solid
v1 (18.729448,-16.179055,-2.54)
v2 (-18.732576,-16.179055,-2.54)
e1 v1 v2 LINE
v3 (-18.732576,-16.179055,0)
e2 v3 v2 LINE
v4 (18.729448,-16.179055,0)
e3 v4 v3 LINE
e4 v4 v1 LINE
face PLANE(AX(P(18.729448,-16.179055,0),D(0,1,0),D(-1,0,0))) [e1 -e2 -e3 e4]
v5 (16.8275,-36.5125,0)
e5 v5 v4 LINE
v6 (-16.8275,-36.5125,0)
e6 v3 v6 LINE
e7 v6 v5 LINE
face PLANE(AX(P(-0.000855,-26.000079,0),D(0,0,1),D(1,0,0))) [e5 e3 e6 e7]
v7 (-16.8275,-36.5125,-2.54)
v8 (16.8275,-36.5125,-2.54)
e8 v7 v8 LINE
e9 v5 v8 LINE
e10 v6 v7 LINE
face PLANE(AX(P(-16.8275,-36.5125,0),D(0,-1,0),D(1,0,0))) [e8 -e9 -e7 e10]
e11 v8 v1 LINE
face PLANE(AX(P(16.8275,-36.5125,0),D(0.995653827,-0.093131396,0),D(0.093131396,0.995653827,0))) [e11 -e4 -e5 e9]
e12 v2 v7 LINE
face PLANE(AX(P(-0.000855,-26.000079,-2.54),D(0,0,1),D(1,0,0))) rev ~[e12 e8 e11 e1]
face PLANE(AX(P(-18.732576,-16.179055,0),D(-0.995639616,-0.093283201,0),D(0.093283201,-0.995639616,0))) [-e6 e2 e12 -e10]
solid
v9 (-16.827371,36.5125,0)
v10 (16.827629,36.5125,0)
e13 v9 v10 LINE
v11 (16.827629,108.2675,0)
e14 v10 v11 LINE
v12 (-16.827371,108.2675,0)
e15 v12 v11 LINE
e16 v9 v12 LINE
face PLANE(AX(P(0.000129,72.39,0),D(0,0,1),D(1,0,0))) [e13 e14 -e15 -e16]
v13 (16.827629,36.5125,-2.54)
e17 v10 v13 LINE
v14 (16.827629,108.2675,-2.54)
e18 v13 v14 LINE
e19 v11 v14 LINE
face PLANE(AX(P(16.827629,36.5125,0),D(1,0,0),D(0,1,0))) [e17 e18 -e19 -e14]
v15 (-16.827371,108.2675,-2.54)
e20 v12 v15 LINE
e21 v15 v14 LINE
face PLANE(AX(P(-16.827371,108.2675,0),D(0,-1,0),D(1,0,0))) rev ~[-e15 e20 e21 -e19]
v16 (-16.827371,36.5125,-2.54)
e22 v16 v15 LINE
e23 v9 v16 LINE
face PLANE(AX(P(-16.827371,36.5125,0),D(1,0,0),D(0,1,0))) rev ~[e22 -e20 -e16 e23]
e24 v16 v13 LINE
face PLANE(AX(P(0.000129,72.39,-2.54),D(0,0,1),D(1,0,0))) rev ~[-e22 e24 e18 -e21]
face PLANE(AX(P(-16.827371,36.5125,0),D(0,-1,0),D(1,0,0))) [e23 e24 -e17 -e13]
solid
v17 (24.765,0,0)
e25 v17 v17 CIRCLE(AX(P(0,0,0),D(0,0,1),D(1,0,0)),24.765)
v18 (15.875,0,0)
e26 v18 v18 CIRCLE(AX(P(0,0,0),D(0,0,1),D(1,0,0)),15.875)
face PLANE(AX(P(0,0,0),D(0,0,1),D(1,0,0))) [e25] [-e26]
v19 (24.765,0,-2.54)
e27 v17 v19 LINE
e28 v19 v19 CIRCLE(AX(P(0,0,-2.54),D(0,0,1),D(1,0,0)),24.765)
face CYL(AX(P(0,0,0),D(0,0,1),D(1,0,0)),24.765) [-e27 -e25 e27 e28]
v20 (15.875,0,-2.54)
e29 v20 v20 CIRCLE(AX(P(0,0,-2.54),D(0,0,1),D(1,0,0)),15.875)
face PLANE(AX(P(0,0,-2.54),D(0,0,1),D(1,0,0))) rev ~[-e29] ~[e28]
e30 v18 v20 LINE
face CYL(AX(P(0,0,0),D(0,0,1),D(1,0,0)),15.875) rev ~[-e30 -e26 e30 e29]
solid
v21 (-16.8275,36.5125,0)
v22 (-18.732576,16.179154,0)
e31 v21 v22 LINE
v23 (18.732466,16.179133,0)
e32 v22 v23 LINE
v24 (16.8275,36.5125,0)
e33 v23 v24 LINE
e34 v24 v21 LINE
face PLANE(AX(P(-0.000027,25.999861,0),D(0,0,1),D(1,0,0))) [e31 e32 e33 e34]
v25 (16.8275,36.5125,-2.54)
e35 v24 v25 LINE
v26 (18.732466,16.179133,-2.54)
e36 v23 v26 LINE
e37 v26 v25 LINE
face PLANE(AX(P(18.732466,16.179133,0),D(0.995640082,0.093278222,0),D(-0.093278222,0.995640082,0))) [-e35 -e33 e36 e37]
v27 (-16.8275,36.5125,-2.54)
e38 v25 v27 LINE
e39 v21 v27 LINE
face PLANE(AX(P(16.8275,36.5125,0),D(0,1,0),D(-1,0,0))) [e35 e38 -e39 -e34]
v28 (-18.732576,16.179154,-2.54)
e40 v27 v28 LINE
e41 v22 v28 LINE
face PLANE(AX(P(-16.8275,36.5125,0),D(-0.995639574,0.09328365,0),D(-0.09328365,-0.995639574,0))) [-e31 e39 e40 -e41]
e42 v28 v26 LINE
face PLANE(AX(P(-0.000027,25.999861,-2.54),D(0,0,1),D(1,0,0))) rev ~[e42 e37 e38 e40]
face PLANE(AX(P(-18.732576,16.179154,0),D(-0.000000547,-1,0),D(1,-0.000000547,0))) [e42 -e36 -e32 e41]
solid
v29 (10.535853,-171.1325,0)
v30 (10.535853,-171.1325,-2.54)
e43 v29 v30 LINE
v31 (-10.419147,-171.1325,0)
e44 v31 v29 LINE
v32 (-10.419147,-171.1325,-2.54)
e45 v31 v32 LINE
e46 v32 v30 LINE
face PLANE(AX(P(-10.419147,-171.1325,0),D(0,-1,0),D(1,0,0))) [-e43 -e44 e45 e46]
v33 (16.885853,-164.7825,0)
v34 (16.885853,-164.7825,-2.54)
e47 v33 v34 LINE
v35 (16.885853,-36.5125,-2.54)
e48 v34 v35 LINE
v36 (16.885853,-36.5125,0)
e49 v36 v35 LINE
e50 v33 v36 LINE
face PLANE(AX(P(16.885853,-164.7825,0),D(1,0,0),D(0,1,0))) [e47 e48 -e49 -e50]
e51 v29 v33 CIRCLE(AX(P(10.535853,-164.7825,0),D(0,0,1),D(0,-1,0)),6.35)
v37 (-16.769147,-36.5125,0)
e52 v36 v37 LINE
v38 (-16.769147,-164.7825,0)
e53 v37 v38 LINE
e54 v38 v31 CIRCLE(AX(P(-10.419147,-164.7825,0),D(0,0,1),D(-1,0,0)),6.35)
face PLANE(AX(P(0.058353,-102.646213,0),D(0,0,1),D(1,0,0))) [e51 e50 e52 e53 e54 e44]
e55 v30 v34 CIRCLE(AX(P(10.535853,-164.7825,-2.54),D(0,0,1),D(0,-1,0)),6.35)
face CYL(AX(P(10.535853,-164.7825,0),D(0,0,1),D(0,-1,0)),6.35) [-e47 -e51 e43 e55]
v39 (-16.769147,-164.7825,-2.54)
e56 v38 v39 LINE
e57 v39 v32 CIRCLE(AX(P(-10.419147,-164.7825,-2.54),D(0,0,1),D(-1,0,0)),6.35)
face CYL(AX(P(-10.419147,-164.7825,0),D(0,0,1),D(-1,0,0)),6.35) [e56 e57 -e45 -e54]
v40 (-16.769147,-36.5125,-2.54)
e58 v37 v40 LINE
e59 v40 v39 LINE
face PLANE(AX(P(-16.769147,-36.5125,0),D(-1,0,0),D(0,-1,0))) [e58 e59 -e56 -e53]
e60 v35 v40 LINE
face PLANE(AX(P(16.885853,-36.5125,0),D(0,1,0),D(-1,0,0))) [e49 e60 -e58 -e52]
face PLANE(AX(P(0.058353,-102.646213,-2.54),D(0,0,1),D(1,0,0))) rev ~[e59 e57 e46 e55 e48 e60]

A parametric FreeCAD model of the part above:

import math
import FreeCAD as App
import Part
import Sketcher

V = App.Vector
Q = App.Units.Quantity

doc = App.newDocument("Part")
body = doc.addObject("PartDesign::Body", "Body")

sketch1 = body.newObject("Sketcher::SketchObject", "Sketch")
sketch1.AttachmentSupport = (doc.getObject("XY_Plane"), [""])
sketch1.MapMode = "FlatFace"
sketch1.addGeometry([
    Part.Circle(V(0, 0, 0), V(0, 0, 1), 25),
    Part.Circle(V(0, 0, 0), V(0, 0, 1), 16),
], False)
sketch1.addConstraint([
    Sketcher.Constraint("Coincident", 0, 3, -1, 1),
    Sketcher.Constraint("Coincident", 1, 3, -1, 1),
    Sketcher.Constraint("Diameter", 0, Q("1.95 in")),
    Sketcher.Constraint("Diameter", 1, Q("1.25 in")),
])
pad1 = body.newObject("PartDesign::Pad", "Pad")
pad1.Profile = sketch1
pad1.Length = Q("0.1 in")
pad1.Reversed = True
body2 = doc.addObject("PartDesign::Body", "Body001")

sketch2 = body2.newObject("Sketcher::SketchObject", "Sketch001")
sketch2.AttachmentSupport = (doc.getObject("XY_Plane001"), [""])
sketch2.MapMode = "FlatFace"
sketch2.addGeometry([
    Part.LineSegment(V(19, -16, 0), V(-19, -16, 0)),
    Part.LineSegment(V(-19, -16, 0), V(-17, -37, 0)),
    Part.LineSegment(V(-17, -37, 0), V(17, -37, 0)),
    Part.LineSegment(V(17, -37, 0), V(19, -16, 0)),
], False)
sketch2.addConstraint([
    Sketcher.Constraint("Coincident", 0, 2, 1, 1),
    Sketcher.Constraint("Coincident", 1, 2, 2, 1),
    Sketcher.Constraint("Coincident", 2, 2, 3, 1),
    Sketcher.Constraint("Coincident", 3, 2, 0, 1),
    Sketcher.Constraint("Horizontal", 0),
    Sketcher.Constraint("Horizontal", 2),
    Sketcher.Constraint("DistanceX", 2, 1, 2, 2, Q("1.325 in")),
    Sketcher.Constraint("DistanceY", 1, 2, -1, 1, Q("1.4375 in")),
    Sketcher.Constraint("DistanceX", 1, 2, -1, 1, Q("0.6625 in")),
    Sketcher.Constraint("DistanceX", 0, 2, 0, 1, 37.462024),
    Sketcher.Constraint("DistanceX", -1, 1, 3, 2, 18.729448),
    Sketcher.Constraint("Distance", 1, 20.422495),
])
pad2 = body2.newObject("PartDesign::Pad", "Pad001")
pad2.Profile = sketch2
pad2.Length = Q("0.1 in")
pad2.Reversed = True
body3 = doc.addObject("PartDesign::Body", "Body002")

sketch3 = body3.newObject("Sketcher::SketchObject", "Sketch002")
sketch3.AttachmentSupport = (doc.getObject("XY_Plane002"), [""])
sketch3.MapMode = "FlatFace"
sketch3.addGeometry([
    Part.LineSegment(V(-17, 37, 0), V(-19, 16, 0)),
    Part.LineSegment(V(-19, 16, 0), V(19, 16, 0)),
    Part.LineSegment(V(19, 16, 0), V(17, 37, 0)),
    Part.LineSegment(V(17, 37, 0), V(-17, 37, 0)),
], False)
sketch3.addConstraint([
    Sketcher.Constraint("Coincident", 0, 2, 1, 1),
    Sketcher.Constraint("Coincident", 1, 2, 2, 1),
    Sketcher.Constraint("Coincident", 2, 2, 3, 1),
    Sketcher.Constraint("Coincident", 3, 2, 0, 1),
    Sketcher.Constraint("Horizontal", 3),
    Sketcher.Constraint("DistanceX", 3, 2, 3, 1, Q("1.325 in")),
    Sketcher.Constraint("DistanceY", -1, 1, 2, 2, Q("1.4375 in")),
    Sketcher.Constraint("DistanceX", -1, 1, 2, 2, Q("0.6625 in")),
    Sketcher.Constraint("Distance", 1, 37.465042),
    Sketcher.Constraint("Distance", 0, 20.422397),
    Sketcher.Constraint("Distance", 2, 20.422407),
    Sketcher.Constraint("DistanceX", 0, 2, -1, 1, 18.732576),
])
pad3 = body3.newObject("PartDesign::Pad", "Pad002")
pad3.Profile = sketch3
pad3.Length = Q("0.1 in")
pad3.Reversed = True
body4 = doc.addObject("PartDesign::Body", "Body003")

sketch4 = body4.newObject("Sketcher::SketchObject", "Sketch003")
sketch4.AttachmentSupport = (doc.getObject("XY_Plane003"), [""])
sketch4.MapMode = "FlatFace"
sketch4.addGeometry([
    Part.LineSegment(V(17, -37, 0), V(-17, -37, 0)),
    Part.LineSegment(V(-17, -37, 0), V(-17, -165, 0)),
    Part.ArcOfCircle(Part.Circle(V(-10, -165, 0), V(0, 0, 1), 6), math.radians(180), math.radians(270)),
    Part.LineSegment(V(-10, -171, 0), V(11, -171, 0)),
    Part.ArcOfCircle(Part.Circle(V(11, -165, 0), V(0, 0, 1), 6), math.radians(-90), math.radians(0)),
    Part.LineSegment(V(17, -165, 0), V(17, -37, 0)),
], False)
sketch4.addConstraint([
    Sketcher.Constraint("Coincident", 0, 2, 1, 1),
    Sketcher.Constraint("Tangent", 1, 2, 2, 1),
    Sketcher.Constraint("Tangent", 2, 2, 3, 1),
    Sketcher.Constraint("Tangent", 3, 2, 4, 1),
    Sketcher.Constraint("Tangent", 4, 2, 5, 1),
    Sketcher.Constraint("Coincident", 5, 2, 0, 1),
    Sketcher.Constraint("Horizontal", 0),
    Sketcher.Constraint("Vertical", 1),
    Sketcher.Constraint("Horizontal", 3),
    Sketcher.Constraint("Vertical", 5),
    Sketcher.Constraint("Equal", 2, 4),
    Sketcher.Constraint("Radius", 2, Q("0.25 in")),
    Sketcher.Constraint("DistanceY", 1, 2, 1, 1, Q("5.05 in")),
    Sketcher.Constraint("DistanceX", 0, 2, 0, 1, Q("1.325 in")),
    Sketcher.Constraint("DistanceY", 0, 2, -1, 1, Q("1.4375 in")),
    Sketcher.Constraint("DistanceX", 2, 3, -1, 1, 10.419147),
])
pad4 = body4.newObject("PartDesign::Pad", "Pad003")
pad4.Profile = sketch4
pad4.Length = Q("0.1 in")
pad4.Reversed = True
body5 = doc.addObject("PartDesign::Body", "Body004")

sketch5 = body5.newObject("Sketcher::SketchObject", "Sketch004")
sketch5.AttachmentSupport = (doc.getObject("XY_Plane004"), [""])
sketch5.MapMode = "FlatFace"
sketch5.addGeometry([
    Part.LineSegment(V(-17, 108, 0), V(-17, 37, 0)),
    Part.LineSegment(V(-17, 37, 0), V(17, 37, 0)),
    Part.LineSegment(V(17, 37, 0), V(17, 108, 0)),
    Part.LineSegment(V(17, 108, 0), V(-17, 108, 0)),
], False)
sketch5.addConstraint([
    Sketcher.Constraint("Coincident", 0, 2, 1, 1),
    Sketcher.Constraint("Coincident", 1, 2, 2, 1),
    Sketcher.Constraint("Coincident", 2, 2, 3, 1),
    Sketcher.Constraint("Coincident", 3, 2, 0, 1),
    Sketcher.Constraint("Vertical", 0),
    Sketcher.Constraint("Horizontal", 1),
    Sketcher.Constraint("Vertical", 2),
    Sketcher.Constraint("Horizontal", 3),
    Sketcher.Constraint("DistanceX", 1, 1, 1, 2, Q("1.325 in")),
    Sketcher.Constraint("DistanceY", 0, 2, 0, 1, Q("2.825 in")),
    Sketcher.Constraint("DistanceY", -1, 1, 0, 2, Q("1.4375 in")),
    Sketcher.Constraint("DistanceX", 0, 2, -1, 1, 16.827371),
])
pad5 = body5.newObject("PartDesign::Pad", "Pad004")
pad5.Profile = sketch5
pad5.Length = Q("0.1 in")
pad5.Reversed = True

doc.recompute()
